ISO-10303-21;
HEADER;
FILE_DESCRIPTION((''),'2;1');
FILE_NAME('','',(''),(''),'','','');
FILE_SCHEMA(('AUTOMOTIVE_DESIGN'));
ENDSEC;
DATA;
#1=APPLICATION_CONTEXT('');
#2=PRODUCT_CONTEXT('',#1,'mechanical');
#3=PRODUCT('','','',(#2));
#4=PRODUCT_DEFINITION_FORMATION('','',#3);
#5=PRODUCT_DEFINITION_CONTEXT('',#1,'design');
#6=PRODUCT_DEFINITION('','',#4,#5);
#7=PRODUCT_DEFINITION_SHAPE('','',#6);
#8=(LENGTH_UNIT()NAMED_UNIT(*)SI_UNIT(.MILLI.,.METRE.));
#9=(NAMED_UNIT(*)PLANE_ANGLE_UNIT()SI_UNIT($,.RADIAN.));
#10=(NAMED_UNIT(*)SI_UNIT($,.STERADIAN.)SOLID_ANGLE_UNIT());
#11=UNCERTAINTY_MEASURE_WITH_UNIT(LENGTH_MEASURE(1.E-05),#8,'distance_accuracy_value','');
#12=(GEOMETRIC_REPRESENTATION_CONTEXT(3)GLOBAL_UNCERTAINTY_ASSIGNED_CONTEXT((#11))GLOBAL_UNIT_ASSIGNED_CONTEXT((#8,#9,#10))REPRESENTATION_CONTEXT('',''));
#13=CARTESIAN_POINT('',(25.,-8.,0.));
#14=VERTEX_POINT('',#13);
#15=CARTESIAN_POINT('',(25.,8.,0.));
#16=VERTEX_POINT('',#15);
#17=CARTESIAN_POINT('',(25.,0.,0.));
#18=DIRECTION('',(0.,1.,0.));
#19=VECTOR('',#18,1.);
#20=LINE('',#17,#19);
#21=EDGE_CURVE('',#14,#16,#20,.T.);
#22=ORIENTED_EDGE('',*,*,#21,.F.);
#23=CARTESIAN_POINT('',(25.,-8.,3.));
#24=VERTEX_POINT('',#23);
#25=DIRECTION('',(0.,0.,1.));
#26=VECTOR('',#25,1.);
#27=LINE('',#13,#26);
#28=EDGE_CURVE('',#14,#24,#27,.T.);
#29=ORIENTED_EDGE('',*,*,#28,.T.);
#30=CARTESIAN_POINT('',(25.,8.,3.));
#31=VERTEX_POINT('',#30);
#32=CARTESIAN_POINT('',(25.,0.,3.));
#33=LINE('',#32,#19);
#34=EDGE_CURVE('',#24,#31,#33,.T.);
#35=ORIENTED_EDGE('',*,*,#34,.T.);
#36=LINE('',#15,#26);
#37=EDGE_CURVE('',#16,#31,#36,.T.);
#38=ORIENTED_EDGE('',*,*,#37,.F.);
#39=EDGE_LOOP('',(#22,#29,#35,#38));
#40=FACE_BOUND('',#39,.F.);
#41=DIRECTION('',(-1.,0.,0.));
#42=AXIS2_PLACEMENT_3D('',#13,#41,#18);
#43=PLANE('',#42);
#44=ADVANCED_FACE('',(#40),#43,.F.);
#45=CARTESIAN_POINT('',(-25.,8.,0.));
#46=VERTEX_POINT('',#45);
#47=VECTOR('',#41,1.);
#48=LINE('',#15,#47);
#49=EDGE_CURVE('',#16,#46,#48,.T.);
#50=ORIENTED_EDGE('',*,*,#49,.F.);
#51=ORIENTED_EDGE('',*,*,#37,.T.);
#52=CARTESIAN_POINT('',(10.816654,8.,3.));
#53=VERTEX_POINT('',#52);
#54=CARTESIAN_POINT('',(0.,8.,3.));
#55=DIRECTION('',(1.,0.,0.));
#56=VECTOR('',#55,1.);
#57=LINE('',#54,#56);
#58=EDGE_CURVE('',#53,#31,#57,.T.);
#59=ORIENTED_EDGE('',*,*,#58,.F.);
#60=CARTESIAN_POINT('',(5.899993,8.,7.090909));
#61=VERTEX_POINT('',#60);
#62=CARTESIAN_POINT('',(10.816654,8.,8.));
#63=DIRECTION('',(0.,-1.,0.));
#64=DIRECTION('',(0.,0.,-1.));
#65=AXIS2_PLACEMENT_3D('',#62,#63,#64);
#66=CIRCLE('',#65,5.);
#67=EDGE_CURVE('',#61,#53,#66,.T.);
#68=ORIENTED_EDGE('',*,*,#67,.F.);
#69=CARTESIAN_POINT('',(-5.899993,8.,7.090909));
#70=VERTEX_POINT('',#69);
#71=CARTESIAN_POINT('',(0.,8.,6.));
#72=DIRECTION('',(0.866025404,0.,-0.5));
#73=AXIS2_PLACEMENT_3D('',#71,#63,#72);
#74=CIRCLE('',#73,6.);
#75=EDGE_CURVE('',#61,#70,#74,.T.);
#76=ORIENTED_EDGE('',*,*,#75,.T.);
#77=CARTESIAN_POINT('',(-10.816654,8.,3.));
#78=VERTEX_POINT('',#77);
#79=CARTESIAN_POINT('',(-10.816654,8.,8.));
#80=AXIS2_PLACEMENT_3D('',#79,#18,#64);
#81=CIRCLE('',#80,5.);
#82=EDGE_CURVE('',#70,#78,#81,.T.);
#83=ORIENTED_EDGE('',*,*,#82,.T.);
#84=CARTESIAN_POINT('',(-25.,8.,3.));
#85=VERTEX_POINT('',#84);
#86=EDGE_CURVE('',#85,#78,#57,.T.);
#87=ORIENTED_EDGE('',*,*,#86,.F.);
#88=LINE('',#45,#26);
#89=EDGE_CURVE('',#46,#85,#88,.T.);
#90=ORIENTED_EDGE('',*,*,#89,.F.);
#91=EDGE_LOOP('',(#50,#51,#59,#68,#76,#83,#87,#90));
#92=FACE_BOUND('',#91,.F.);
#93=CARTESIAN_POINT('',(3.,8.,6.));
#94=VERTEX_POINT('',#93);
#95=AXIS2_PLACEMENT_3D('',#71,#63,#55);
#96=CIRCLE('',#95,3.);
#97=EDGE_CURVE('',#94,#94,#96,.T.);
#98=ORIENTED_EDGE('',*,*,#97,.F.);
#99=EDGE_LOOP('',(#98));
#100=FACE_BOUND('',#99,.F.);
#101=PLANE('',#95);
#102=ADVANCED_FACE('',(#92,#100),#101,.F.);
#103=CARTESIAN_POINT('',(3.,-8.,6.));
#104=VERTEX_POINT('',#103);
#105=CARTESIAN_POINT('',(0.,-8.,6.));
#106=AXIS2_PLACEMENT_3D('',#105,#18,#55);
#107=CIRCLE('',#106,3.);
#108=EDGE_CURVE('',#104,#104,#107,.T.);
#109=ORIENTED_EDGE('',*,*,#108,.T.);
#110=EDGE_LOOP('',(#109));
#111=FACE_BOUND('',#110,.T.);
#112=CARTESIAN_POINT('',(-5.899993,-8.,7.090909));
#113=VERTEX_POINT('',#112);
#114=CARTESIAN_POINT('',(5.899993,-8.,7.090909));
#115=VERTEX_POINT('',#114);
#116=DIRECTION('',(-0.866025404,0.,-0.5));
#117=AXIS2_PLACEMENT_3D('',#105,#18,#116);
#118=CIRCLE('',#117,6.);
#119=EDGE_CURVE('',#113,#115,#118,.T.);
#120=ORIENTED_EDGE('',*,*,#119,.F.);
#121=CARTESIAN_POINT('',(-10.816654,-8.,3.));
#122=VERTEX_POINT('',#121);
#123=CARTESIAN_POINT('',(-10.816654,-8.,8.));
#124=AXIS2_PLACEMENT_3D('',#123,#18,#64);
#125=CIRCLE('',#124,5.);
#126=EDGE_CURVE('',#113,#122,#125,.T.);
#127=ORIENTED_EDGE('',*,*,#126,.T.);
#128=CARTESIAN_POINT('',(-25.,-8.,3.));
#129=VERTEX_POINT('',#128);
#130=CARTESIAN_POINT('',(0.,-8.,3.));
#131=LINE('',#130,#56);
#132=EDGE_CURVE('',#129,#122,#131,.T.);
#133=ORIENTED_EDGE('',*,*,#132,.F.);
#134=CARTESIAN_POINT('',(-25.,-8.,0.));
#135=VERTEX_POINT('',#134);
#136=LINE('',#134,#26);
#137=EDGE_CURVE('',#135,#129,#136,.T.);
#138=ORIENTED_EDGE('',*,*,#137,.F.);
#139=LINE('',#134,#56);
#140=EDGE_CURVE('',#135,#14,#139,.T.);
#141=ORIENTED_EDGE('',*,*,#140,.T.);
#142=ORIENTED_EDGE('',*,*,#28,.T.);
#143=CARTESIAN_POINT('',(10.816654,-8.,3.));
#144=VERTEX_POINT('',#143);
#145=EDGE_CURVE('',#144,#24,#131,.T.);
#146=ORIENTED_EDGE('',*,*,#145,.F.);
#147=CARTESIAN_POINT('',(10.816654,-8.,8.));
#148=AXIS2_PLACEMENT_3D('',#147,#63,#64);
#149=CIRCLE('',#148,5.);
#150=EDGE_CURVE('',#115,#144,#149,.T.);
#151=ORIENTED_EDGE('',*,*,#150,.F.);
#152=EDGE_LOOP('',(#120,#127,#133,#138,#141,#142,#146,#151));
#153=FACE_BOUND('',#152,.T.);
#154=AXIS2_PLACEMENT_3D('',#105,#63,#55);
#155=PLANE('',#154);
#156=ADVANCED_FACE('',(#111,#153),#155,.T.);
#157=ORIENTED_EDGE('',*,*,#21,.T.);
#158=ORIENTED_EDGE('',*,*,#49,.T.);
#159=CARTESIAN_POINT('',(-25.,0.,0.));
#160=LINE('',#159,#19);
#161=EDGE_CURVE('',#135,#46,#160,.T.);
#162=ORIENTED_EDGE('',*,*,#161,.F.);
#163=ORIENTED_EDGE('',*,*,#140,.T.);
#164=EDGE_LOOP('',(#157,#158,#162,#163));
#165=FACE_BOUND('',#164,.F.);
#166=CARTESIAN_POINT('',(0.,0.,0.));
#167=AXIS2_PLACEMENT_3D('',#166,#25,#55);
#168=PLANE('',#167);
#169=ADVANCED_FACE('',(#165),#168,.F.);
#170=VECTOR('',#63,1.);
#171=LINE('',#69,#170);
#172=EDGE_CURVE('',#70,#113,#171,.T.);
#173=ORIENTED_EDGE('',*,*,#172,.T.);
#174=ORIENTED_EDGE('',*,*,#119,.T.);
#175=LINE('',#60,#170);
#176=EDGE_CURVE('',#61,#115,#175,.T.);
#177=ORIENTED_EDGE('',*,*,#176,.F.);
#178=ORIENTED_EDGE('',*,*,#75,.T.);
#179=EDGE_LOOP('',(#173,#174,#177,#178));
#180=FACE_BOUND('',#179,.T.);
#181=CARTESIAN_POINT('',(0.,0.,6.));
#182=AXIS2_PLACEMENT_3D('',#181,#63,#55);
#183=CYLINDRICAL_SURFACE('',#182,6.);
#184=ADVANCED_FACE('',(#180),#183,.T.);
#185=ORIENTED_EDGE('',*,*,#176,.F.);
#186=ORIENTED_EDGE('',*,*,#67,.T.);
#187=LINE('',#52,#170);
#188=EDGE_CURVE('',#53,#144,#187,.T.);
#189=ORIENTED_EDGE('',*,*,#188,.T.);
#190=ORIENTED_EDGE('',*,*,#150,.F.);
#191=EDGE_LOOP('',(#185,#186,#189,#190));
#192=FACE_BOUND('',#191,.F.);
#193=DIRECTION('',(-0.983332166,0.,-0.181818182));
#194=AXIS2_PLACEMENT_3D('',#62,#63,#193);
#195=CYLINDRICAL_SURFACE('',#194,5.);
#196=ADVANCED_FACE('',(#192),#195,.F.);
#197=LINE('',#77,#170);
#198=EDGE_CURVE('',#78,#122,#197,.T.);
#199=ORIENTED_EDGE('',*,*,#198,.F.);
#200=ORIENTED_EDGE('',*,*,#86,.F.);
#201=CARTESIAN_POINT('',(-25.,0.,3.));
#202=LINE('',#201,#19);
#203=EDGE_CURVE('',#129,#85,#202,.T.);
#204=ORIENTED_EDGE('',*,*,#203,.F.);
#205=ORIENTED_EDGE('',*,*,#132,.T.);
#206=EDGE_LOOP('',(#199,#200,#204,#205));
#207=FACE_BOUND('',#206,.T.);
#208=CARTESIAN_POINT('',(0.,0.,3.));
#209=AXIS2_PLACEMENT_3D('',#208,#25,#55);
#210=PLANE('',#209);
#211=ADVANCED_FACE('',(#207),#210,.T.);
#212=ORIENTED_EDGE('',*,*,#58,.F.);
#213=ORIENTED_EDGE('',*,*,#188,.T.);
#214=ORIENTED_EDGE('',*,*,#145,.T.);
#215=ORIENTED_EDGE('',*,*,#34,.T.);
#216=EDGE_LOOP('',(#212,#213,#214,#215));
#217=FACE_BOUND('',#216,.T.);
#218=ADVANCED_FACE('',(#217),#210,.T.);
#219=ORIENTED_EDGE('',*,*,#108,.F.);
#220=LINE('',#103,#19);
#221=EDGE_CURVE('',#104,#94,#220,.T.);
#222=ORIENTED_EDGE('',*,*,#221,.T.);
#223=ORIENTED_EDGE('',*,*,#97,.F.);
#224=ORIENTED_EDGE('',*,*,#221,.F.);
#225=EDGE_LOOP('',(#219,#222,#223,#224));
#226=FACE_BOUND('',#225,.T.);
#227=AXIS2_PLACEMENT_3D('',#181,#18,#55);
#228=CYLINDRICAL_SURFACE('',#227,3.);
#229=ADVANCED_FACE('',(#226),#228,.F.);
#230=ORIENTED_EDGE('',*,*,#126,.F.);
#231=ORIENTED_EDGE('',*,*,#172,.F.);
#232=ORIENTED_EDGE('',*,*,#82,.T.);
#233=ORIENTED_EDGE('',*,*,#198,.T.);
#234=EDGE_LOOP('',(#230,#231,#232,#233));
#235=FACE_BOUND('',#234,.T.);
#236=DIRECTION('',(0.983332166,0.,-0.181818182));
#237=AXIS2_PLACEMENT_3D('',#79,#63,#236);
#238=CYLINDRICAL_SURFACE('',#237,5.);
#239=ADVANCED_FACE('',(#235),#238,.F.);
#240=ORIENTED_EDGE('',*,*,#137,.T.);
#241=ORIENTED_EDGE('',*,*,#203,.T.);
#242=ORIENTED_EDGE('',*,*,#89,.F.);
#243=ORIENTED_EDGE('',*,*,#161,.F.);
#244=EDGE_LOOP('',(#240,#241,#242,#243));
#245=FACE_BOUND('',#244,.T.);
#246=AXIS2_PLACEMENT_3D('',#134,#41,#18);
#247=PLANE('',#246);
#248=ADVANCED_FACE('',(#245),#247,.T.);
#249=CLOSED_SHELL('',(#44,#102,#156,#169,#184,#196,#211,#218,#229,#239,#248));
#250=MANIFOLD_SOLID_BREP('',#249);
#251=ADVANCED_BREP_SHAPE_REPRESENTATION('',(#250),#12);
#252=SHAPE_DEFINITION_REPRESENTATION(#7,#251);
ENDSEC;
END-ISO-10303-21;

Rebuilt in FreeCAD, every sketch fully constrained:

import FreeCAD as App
import Part
import Sketcher


def edges_at(feature, points):
    """Names of the edges that pass closest to the given points."""
    edges = feature.Shape.Edges
    near = lambda p: min(range(len(edges)), key=lambda i: edges[i].distToShape(Part.Vertex(*p))[0])
    return sorted({f"Edge{near(p) + 1}" for p in points})


def add_polygon(sketch, points):
    """Adds a closed chain of lines whose ends are joined by coincident constraints."""
    first, n = sketch.GeometryCount, len(points)
    for a, b in zip(points, points[1:] + points[:1]):
        sketch.addGeometry(Part.LineSegment(App.Vector(*a, 0), App.Vector(*b, 0)), False)
    for i in range(n):
        sketch.addConstraint(Sketcher.Constraint("Coincident", first + i, 2, first + (i + 1) % n, 1))

doc = App.newDocument("Part")
params = doc.addObject("Spreadsheet::Sheet", "Params")
for row, (alias, value) in enumerate([
    ("sketch1_width", "50 mm"),
    ("sketch1_height", "16 mm"),
    ("pad1_length", "3 mm"),
    ("sketch2_diameter", "12 mm"),
    ("sketch2_diameter2", "6 mm"),
    ("pad2_length", "16 mm"),
    ("fillet_radius", "5 mm"),
], start=1):
    params.set(f"A{row}", alias)
    params.set(f"B{row}", "=" + value)
    params.setAlias(f"B{row}", alias)

body = doc.addObject("PartDesign::Body", "Body")

# Sketch on XY plane
sketch1 = body.newObject("Sketcher::SketchObject", "Sketch")
sketch1.AttachmentSupport = (doc.getObject("XY_Plane"), [""])
sketch1.MapMode = "FlatFace"
add_polygon(sketch1, [(-25, 8), (-25, -8), (25, -8), (25, 8)])  # lines 0-3
sketch1.addConstraint(Sketcher.Constraint("Vertical", 0))
sketch1.addConstraint(Sketcher.Constraint("Horizontal", 1))
sketch1.addConstraint(Sketcher.Constraint("Vertical", 2))
sketch1.addConstraint(Sketcher.Constraint("Horizontal", 3))
sketch1.addConstraint(Sketcher.Constraint("Symmetric", 0, 2, 2, 2, -1, 1))
sketch1.addConstraint(Sketcher.Constraint("DistanceX", 1, 1, 1, 2, 50.0))
sketch1.addConstraint(Sketcher.Constraint("DistanceY", 0, 2, 0, 1, 16.0))
sketch1.setExpression("Constraints[9]", "Params.sketch1_width")
sketch1.setExpression("Constraints[10]", "Params.sketch1_height")
pad1 = body.newObject("PartDesign::Pad", "Pad")
pad1.Profile = sketch1
pad1.setExpression("Length", "Params.pad1_length")

# Sketch on XZ plane
sketch2 = body.newObject("Sketcher::SketchObject", "Sketch001")
sketch2.AttachmentSupport = (doc.getObject("XZ_Plane"), [""])
sketch2.MapMode = "FlatFace"
sketch2.addGeometry(Part.Circle(App.Vector(0, 6, 0), App.Vector(0, 0, 1), 6), False)
sketch2.addGeometry(Part.Circle(App.Vector(0, 6, 0), App.Vector(0, 0, 1), 3), False)
sketch2.addConstraint(Sketcher.Constraint("Coincident", 1, 3, 0, 3))
sketch2.addConstraint(Sketcher.Constraint("PointOnObject", 0, 3, -2))
sketch2.addConstraint(Sketcher.Constraint("Diameter", 0, 12.0))
sketch2.addConstraint(Sketcher.Constraint("Diameter", 1, 6.0))
sketch2.addConstraint(Sketcher.Constraint("DistanceY", -1, 1, 0, 3, 6.0))
sketch2.setExpression("Constraints[2]", "Params.sketch2_diameter")
sketch2.setExpression("Constraints[3]", "Params.sketch2_diameter2")
pad2 = body.newObject("PartDesign::Pad", "Pad001")
pad2.Profile = sketch2
pad2.setExpression("Length", "Params.pad2_length")
pad2.Midplane = True
doc.recompute()

fillet = body.newObject("PartDesign::Fillet", "Fillet")
fillet.Base = (pad2, edges_at(pad2, [(-5.196, 0, 3), (5.196, 0, 3)]))
fillet.setExpression("Radius", "Params.fillet_radius")

doc.recompute()
